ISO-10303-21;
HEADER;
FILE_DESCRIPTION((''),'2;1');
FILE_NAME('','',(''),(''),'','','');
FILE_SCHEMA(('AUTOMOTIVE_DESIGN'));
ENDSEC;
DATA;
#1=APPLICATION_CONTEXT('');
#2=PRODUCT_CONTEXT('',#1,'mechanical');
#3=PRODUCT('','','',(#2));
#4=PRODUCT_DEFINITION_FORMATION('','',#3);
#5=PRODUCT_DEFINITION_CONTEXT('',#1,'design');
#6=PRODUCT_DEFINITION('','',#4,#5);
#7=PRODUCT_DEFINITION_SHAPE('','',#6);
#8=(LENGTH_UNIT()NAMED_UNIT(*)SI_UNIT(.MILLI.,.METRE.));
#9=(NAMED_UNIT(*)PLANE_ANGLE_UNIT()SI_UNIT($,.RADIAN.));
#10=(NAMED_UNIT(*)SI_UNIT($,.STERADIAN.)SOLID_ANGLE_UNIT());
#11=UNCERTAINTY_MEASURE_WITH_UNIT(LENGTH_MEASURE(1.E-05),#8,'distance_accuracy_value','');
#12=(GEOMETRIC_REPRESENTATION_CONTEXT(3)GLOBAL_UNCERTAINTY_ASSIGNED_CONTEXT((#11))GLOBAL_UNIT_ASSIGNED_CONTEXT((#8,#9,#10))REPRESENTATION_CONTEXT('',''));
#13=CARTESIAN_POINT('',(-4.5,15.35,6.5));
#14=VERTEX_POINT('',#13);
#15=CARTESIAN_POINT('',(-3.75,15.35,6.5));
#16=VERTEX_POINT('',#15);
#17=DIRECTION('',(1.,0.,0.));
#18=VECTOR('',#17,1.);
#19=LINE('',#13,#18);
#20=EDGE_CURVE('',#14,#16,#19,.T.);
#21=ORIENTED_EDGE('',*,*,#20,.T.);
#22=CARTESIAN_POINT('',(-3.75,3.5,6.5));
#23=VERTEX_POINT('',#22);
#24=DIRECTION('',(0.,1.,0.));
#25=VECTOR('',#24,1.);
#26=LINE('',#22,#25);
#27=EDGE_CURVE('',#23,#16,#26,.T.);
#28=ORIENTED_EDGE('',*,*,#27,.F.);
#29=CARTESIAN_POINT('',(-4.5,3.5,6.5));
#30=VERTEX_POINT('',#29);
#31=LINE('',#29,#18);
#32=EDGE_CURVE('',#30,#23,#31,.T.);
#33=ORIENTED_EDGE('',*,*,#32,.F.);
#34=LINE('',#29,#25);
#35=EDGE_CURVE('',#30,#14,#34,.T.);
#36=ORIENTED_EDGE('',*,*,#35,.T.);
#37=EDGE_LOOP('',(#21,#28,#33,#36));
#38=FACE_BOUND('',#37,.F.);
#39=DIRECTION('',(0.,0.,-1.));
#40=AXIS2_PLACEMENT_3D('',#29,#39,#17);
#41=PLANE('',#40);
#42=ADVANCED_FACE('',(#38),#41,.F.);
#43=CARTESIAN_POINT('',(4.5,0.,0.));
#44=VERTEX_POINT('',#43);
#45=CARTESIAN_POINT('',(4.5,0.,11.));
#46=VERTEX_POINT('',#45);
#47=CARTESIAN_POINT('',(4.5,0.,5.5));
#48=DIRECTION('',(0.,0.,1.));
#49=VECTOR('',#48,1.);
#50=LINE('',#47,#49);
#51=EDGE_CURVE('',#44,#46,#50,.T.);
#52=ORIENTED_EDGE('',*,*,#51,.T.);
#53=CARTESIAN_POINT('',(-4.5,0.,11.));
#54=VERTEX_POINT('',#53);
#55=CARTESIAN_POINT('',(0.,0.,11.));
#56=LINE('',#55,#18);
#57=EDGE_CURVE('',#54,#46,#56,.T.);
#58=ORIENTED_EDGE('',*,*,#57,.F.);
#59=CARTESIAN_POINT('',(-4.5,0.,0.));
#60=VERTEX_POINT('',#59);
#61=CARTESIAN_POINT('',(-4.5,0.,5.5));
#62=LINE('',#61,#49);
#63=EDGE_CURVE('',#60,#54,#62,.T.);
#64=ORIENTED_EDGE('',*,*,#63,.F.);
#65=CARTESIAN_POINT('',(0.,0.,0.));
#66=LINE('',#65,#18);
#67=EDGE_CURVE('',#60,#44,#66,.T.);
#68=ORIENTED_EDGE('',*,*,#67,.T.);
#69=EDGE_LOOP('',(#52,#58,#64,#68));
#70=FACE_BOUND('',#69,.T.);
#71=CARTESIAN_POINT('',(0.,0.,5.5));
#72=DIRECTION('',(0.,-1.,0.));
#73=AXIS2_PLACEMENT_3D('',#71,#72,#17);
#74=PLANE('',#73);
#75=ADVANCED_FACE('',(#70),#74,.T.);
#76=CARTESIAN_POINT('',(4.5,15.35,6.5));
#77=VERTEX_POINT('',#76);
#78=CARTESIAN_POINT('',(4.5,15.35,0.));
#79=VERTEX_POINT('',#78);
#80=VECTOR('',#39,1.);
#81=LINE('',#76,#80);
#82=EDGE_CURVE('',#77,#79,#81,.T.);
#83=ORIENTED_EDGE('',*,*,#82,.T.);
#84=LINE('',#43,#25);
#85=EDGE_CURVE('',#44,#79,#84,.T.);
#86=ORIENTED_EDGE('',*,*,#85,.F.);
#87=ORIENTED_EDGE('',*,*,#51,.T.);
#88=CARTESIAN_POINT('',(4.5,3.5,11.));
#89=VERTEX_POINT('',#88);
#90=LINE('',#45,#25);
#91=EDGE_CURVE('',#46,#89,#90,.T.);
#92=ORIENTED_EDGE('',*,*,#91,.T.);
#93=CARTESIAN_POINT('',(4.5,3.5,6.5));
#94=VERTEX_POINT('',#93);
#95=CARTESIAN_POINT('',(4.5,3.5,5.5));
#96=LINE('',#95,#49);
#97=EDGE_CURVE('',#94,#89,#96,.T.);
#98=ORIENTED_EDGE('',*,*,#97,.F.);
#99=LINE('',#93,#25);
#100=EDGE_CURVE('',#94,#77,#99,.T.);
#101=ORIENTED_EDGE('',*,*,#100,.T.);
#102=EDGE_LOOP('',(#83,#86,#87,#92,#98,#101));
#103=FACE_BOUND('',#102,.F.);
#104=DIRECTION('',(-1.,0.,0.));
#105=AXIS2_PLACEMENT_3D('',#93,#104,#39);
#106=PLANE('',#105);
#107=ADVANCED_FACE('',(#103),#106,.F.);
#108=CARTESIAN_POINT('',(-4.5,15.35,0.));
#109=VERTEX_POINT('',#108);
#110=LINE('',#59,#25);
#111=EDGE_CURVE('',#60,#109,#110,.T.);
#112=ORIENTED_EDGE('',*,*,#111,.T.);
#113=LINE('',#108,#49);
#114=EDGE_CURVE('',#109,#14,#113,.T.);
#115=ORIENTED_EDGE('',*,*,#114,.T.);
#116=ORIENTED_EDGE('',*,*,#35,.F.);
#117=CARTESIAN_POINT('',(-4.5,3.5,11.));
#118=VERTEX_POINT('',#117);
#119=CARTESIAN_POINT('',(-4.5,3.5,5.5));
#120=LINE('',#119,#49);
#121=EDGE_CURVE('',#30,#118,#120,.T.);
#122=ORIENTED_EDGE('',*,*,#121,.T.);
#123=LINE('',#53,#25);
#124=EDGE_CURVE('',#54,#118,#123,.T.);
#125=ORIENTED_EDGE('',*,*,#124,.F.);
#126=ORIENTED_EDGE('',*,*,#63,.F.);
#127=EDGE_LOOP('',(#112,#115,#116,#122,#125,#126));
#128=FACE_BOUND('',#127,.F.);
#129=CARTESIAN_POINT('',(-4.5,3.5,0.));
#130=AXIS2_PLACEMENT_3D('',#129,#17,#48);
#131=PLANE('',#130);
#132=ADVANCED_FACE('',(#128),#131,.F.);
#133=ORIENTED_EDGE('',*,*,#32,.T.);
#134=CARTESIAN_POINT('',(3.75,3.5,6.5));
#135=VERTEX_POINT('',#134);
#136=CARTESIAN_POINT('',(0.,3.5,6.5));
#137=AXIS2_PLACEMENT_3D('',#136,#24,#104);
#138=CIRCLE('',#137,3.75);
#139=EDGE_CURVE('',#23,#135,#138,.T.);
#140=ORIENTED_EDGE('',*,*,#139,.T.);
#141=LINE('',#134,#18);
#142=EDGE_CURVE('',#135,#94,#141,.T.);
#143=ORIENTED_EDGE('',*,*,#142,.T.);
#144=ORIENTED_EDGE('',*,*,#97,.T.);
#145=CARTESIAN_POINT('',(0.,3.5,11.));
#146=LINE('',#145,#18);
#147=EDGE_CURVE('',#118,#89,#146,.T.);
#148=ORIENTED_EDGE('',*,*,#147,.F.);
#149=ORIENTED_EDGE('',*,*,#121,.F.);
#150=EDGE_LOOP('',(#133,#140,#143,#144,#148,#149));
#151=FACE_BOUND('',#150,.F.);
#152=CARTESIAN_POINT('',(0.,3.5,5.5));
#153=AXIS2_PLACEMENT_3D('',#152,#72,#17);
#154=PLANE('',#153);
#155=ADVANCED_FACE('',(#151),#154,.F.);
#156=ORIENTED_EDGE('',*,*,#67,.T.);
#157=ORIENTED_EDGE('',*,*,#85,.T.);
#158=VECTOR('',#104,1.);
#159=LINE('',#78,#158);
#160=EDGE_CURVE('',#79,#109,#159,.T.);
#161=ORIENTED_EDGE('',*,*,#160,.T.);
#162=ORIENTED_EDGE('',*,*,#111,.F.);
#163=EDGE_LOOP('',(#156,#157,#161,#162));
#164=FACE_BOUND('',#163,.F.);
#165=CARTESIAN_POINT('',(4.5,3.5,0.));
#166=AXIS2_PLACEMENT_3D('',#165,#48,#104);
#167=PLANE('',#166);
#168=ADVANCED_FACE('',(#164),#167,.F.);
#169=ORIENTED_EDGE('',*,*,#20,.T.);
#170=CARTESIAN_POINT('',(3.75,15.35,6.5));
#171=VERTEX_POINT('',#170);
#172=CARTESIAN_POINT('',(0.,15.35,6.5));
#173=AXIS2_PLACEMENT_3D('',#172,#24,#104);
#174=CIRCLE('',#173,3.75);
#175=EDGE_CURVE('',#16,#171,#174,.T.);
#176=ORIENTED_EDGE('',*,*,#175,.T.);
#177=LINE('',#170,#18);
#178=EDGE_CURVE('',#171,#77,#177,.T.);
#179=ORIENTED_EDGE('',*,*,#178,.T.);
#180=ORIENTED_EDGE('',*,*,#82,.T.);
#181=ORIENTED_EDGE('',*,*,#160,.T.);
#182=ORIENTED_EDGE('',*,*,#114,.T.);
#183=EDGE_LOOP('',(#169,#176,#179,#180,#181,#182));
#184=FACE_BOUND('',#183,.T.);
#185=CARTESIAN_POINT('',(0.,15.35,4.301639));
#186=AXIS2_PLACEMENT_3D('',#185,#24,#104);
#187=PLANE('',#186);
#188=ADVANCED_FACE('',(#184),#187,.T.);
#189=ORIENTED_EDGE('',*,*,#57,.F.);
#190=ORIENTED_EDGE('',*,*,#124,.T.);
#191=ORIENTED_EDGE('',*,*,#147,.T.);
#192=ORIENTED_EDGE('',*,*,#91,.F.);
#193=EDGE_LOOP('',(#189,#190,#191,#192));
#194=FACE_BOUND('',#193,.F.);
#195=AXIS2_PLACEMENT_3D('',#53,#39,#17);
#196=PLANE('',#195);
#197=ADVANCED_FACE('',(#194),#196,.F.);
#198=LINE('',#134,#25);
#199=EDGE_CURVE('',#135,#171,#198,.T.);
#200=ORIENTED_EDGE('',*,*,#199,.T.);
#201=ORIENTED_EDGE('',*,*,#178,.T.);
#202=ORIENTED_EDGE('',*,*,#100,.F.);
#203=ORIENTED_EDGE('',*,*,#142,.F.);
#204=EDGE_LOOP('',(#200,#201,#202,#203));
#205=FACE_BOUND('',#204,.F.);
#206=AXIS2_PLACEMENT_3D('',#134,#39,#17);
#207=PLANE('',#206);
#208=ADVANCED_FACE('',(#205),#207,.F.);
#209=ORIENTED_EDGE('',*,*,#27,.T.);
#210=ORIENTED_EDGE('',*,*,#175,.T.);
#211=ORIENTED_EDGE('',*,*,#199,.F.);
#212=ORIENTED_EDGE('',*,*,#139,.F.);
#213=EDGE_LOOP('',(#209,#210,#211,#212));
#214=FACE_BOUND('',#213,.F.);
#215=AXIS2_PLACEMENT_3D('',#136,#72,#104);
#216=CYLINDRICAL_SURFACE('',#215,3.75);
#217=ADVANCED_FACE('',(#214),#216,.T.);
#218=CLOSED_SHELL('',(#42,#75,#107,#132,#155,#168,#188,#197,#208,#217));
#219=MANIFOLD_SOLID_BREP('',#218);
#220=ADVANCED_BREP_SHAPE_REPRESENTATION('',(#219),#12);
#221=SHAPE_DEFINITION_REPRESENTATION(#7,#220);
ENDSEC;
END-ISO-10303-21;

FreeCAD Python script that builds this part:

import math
import FreeCAD as App
import Part
import Sketcher

V = App.Vector
Q = App.Units.Quantity


def add_polygon(sketch, points):
    """Adds a closed chain of lines whose ends are joined by coincident constraints."""
    first, n = sketch.GeometryCount, len(points)
    for a, b in zip(points, points[1:] + points[:1]):
        sketch.addGeometry(Part.LineSegment(App.Vector(*a, 0), App.Vector(*b, 0)), False)
    for i in range(n):
        sketch.addConstraint(Sketcher.Constraint("Coincident", first + i, 2, first + (i + 1) % n, 1))

doc = App.newDocument("Part")
body = doc.addObject("PartDesign::Body", "Body")

sketch1 = body.newObject("Sketcher::SketchObject", "Sketch")
sketch1.AttachmentSupport = (doc.getObject("XZ_Plane"), [""])
sketch1.MapMode = "FlatFace"
add_polygon(sketch1, [(-4.5, 11), (-4.5, 0), (4.5, 0), (4.5, 11)])
sketch1.addConstraint(Sketcher.Constraint("Vertical", 0))
sketch1.addConstraint(Sketcher.Constraint("Horizontal", 1))
sketch1.addConstraint(Sketcher.Constraint("Vertical", 2))
sketch1.addConstraint(Sketcher.Constraint("Horizontal", 3))
sketch1.addConstraint(Sketcher.Constraint("Symmetric", 0, 2, 1, 2, -1, 1))
sketch1.addConstraint(Sketcher.Constraint("DistanceX", 1, 1, 1, 2, Q("9 mm")))
sketch1.addConstraint(Sketcher.Constraint("DistanceY", 0, 2, 0, 1, Q("11 mm")))
pad1 = body.newObject("PartDesign::Pad", "Pad")
pad1.Profile = sketch1
pad1.Length = 3.5
pad1.Reversed = True

sketch2 = body.newObject("Sketcher::SketchObject", "Sketch001")
sketch2.AttachmentSupport = (doc.getObject("XZ_Plane"), [""])
sketch2.MapMode = "FlatFace"
sketch2.AttachmentOffset = App.Placement(V(0, 0, -3.5), App.Rotation())
sketch2.addGeometry(Part.LineSegment(V(4.5, 6.5, 0), V(4.5, 0, 0)), False)
sketch2.addGeometry(Part.LineSegment(V(4.5, 0, 0), V(-4.5, 0, 0)), False)
sketch2.addGeometry(Part.LineSegment(V(-4.5, 0, 0), V(-4.5, 6.5, 0)), False)
sketch2.addGeometry(Part.LineSegment(V(-4.5, 6.5, 0), V(-3.75, 6.5, 0)), False)
sketch2.addGeometry(Part.ArcOfCircle(Part.Circle(V(0, 6.5, 0), V(0, 0, 1), 3.75), math.radians(0), math.radians(180)), False)
sketch2.addGeometry(Part.LineSegment(V(3.75, 6.5, 0), V(4.5, 6.5, 0)), False)
sketch2.addConstraint(Sketcher.Constraint("Coincident", 0, 2, 1, 1))
sketch2.addConstraint(Sketcher.Constraint("Coincident", 1, 2, 2, 1))
sketch2.addConstraint(Sketcher.Constraint("Coincident", 2, 2, 3, 1))
sketch2.addConstraint(Sketcher.Constraint("Coincident", 3, 2, 4, 2))
sketch2.addConstraint(Sketcher.Constraint("Coincident", 4, 1, 5, 1))
sketch2.addConstraint(Sketcher.Constraint("Coincident", 5, 2, 0, 1))
sketch2.addConstraint(Sketcher.Constraint("Vertical", 0))
sketch2.addConstraint(Sketcher.Constraint("Horizontal", 1))
sketch2.addConstraint(Sketcher.Constraint("Vertical", 2))
sketch2.addConstraint(Sketcher.Constraint("Horizontal", 3))
sketch2.addConstraint(Sketcher.Constraint("Horizontal", 5))
sketch2.addConstraint(Sketcher.Constraint("Symmetric", 0, 2, 1, 2, -1, 1))
sketch2.addConstraint(Sketcher.Constraint("Symmetric", 3, 2, 4, 1, -2))
sketch2.addConstraint(Sketcher.Constraint("Horizontal", 4, 3, 2, 2))
sketch2.addConstraint(Sketcher.Constraint("DistanceX", 1, 2, 1, 1, Q("9 mm")))
sketch2.addConstraint(Sketcher.Constraint("Radius", 4, Q("3.75 mm")))
sketch2.addConstraint(Sketcher.Constraint("DistanceY", 0, 2, 0, 1, Q("6.5 mm")))
pad2 = body.newObject("PartDesign::Pad", "Pad001")
pad2.Profile = sketch2
pad2.Length = 11.85
pad2.Reversed = True

doc.recompute()
